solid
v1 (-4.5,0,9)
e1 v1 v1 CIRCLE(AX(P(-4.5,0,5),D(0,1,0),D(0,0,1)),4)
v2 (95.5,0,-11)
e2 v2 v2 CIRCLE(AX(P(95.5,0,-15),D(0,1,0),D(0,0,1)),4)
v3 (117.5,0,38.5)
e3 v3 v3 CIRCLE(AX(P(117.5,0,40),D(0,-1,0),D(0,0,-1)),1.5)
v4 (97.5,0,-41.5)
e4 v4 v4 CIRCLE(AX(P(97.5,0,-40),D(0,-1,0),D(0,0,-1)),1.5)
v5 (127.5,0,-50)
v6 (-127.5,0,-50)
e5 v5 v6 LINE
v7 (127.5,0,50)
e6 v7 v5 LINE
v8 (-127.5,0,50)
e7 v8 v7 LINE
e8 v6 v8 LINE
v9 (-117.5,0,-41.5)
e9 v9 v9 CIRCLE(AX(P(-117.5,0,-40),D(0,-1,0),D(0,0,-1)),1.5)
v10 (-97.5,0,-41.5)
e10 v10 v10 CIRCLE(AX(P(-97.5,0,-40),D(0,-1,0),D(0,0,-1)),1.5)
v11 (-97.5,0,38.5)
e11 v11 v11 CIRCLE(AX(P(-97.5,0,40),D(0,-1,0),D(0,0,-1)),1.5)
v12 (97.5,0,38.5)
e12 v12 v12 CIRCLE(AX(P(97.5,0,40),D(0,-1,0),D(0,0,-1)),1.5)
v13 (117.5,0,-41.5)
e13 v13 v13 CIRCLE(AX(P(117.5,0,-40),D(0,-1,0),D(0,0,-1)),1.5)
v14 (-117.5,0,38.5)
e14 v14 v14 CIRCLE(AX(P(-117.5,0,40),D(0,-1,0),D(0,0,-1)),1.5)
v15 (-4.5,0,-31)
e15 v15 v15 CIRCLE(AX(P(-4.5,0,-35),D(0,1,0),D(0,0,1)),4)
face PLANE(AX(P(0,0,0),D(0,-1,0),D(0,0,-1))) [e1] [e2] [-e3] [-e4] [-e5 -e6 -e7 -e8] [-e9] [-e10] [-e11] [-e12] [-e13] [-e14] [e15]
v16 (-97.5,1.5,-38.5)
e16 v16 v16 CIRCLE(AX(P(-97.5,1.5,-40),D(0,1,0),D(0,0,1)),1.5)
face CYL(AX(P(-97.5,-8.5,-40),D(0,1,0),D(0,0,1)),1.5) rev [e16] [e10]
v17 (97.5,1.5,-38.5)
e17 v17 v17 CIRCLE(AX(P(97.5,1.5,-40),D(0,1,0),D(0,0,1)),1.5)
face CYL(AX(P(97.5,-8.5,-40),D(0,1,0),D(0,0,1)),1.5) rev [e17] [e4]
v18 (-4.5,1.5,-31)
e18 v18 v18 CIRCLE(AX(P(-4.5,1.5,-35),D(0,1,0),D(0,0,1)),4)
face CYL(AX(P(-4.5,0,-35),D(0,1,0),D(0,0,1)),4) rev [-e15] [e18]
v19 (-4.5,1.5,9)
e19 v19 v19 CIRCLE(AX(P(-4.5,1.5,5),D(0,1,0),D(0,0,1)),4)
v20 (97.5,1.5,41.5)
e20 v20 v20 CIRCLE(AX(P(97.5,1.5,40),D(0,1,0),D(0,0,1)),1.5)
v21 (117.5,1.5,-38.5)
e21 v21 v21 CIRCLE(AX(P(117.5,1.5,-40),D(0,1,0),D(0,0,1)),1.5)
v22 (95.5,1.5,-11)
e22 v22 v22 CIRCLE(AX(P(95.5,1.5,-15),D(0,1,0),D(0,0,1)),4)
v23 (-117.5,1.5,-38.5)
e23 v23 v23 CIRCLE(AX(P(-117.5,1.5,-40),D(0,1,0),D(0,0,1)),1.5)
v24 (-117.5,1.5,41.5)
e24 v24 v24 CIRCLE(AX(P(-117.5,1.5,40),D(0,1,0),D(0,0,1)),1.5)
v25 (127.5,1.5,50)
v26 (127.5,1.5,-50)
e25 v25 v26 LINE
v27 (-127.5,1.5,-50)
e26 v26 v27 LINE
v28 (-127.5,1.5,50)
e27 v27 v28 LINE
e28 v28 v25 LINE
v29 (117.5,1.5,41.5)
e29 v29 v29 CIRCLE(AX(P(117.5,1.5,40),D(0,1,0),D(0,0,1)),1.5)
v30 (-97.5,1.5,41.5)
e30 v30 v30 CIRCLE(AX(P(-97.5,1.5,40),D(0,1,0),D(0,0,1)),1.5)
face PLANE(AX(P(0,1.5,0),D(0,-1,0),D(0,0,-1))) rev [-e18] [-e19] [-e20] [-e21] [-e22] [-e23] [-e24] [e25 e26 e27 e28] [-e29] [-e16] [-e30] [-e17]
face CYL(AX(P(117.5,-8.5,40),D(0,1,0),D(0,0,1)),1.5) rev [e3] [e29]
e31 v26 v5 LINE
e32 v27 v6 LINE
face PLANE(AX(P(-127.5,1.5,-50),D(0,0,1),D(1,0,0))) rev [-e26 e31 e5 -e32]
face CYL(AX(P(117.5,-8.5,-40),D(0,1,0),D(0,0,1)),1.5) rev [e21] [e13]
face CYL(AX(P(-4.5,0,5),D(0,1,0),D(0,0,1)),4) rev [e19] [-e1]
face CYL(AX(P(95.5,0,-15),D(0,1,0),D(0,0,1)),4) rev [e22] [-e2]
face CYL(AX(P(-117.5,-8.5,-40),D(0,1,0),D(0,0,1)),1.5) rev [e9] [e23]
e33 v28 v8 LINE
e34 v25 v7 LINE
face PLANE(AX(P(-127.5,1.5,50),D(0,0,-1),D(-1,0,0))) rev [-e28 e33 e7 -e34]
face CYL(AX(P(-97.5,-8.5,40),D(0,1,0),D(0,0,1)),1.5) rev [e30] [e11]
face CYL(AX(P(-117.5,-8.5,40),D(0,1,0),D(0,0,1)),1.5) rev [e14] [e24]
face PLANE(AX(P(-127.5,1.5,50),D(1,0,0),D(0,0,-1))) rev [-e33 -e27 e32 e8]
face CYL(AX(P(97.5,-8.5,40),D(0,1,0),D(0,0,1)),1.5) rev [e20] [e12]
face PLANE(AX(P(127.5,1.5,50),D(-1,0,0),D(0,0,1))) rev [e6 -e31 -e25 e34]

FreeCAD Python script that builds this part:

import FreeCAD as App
import Part
import Sketcher

V = App.Vector
Q = App.Units.Quantity


def add_polygon(sketch, points):
    """Adds a closed chain of lines whose ends are joined by coincident constraints."""
    first, n = sketch.GeometryCount, len(points)
    for a, b in zip(points, points[1:] + points[:1]):
        sketch.addGeometry(Part.LineSegment(App.Vector(*a, 0), App.Vector(*b, 0)), False)
    for i in range(n):
        sketch.addConstraint(Sketcher.Constraint("Coincident", first + i, 2, first + (i + 1) % n, 1))

doc = App.newDocument("Part")
body = doc.addObject("PartDesign::Body", "Body")

# Sketch on XZ plane
sketch1 = doc.addObject("Sketcher::SketchObject", "Sketch")
body.addObject(sketch1)
sketch1.AttachmentSupport = (doc.XZ_Plane, [""])
sketch1.MapMode = "FlatFace"
add_polygon(sketch1, [(-128, -50), (-128, 50), (128, 50), (128, -50)])  # lines 0-3
sketch1.addConstraint(Sketcher.Constraint("Vertical", 0))
sketch1.addConstraint(Sketcher.Constraint("Horizontal", 1))
sketch1.addConstraint(Sketcher.Constraint("Vertical", 2))
sketch1.addConstraint(Sketcher.Constraint("Horizontal", 3))
sketch1.addConstraint(Sketcher.Constraint("Symmetric", 0, 2, 2, 2, -1, 1))
sketch1.addConstraint(Sketcher.Constraint("DistanceX", 1, 1, 1, 2, Q("255 mm")))
sketch1.addConstraint(Sketcher.Constraint("DistanceY", 0, 1, 0, 2, Q("100 mm")))
pad1 = doc.addObject("PartDesign::Pad", "Pad")
body.addObject(pad1)
pad1.Profile = sketch1
pad1.Length = 1.5
pad1.Reversed = True

# Sketch on XZ plane
sketch2 = doc.addObject("Sketcher::SketchObject", "Sketch001")
body.addObject(sketch2)
sketch2.AttachmentSupport = (doc.XZ_Plane, [""])
sketch2.MapMode = "FlatFace"
sketch2.AttachmentOffset = App.Placement(V(0, 0, -1.5), App.Rotation())
sketch2.addGeometry(Part.Circle(V(117.5, -40, 0), V(0, 0, 1), 1.5), False)
sketch2.addGeometry(Part.Circle(V(97.5, -40, 0), V(0, 0, 1), 1.5), False)
sketch2.addGeometry(Part.Circle(V(97.5, 40, 0), V(0, 0, 1), 1.5), False)
sketch2.addGeometry(Part.Circle(V(117.5, 40, 0), V(0, 0, 1), 1.5), False)
sketch2.addGeometry(Part.Circle(V(-97.5, -40, 0), V(0, 0, 1), 1.5), False)
sketch2.addGeometry(Part.Circle(V(-117.5, -40, 0), V(0, 0, 1), 1.5), False)
sketch2.addGeometry(Part.Circle(V(-117.5, 40, 0), V(0, 0, 1), 1.5), False)
sketch2.addGeometry(Part.Circle(V(-97.5, 40, 0), V(0, 0, 1), 1.5), False)
sketch2.addConstraint(Sketcher.Constraint("Equal", 0, 1))
sketch2.addConstraint(Sketcher.Constraint("Equal", 1, 2))
sketch2.addConstraint(Sketcher.Constraint("Equal", 2, 3))
sketch2.addConstraint(Sketcher.Constraint("Equal", 3, 4))
sketch2.addConstraint(Sketcher.Constraint("Equal", 4, 5))
sketch2.addConstraint(Sketcher.Constraint("Equal", 5, 6))
sketch2.addConstraint(Sketcher.Constraint("Equal", 6, 7))
sketch2.addConstraint(Sketcher.Constraint("Symmetric", 2, 3, 4, 3, -1, 1))
sketch2.addConstraint(Sketcher.Constraint("Symmetric", 3, 3, 5, 3, -1, 1))
sketch2.addConstraint(Sketcher.Constraint("Symmetric", 0, 3, 6, 3, -1, 1))
sketch2.addConstraint(Sketcher.Constraint("Symmetric", 1, 3, 7, 3, -1, 1))
sketch2.addConstraint(Sketcher.Constraint("Symmetric", 1, 3, 4, 3, -2))
sketch2.addConstraint(Sketcher.Constraint("Symmetric", 0, 3, 5, 3, -2))
sketch2.addConstraint(Sketcher.Constraint("Horizontal", 0, 3, 1, 3))
sketch2.addConstraint(Sketcher.Constraint("Diameter", 0, Q("3 mm")))
sketch2.addConstraint(Sketcher.Constraint("DistanceY", 0, 3, -1, 1, Q("40 mm")))
sketch2.addConstraint(Sketcher.Constraint("DistanceX", 1, 3, 0, 3, Q("20 mm")))
sketch2.addConstraint(Sketcher.Constraint("DistanceX", 4, 3, 1, 3, Q("195 mm")))
pocket1 = doc.addObject("PartDesign::Pocket", "Pocket")
body.addObject(pocket1)
pocket1.Profile = sketch2
pocket1.Length = 10
pocket1.Reversed = True

# Sketch on XZ plane
sketch3 = doc.addObject("Sketcher::SketchObject", "Sketch002")
body.addObject(sketch3)
sketch3.AttachmentSupport = (doc.XZ_Plane, [""])
sketch3.MapMode = "FlatFace"
sketch3.AttachmentOffset = App.Placement(V(0, 0, -1.5), App.Rotation())
sketch3.addGeometry(Part.Circle(V(95.5, -15, 0), V(0, 0, 1), 4), False)
sketch3.addGeometry(Part.Circle(V(-4.5, -35, 0), V(0, 0, 1), 4), False)
sketch3.addGeometry(Part.Circle(V(-4.5, 5, 0), V(0, 0, 1), 4), False)
sketch3.addConstraint(Sketcher.Constraint("Equal", 0, 1))
sketch3.addConstraint(Sketcher.Constraint("Equal", 1, 2))
sketch3.addConstraint(Sketcher.Constraint("Vertical", 1, 3, 2, 3))
sketch3.addConstraint(Sketcher.Constraint("Diameter", 0, Q("8 mm")))
sketch3.addConstraint(Sketcher.Constraint("DistanceY", 0, 3, -1, 1, Q("15 mm")))
sketch3.addConstraint(Sketcher.Constraint("DistanceY", 1, 3, -1, 1, Q("35 mm")))
sketch3.addConstraint(Sketcher.Constraint("DistanceY", -1, 1, 2, 3, Q("5 mm")))
sketch3.addConstraint(Sketcher.Constraint("DistanceX", 1, 3, 0, 3, Q("100 mm")))
sketch3.addConstraint(Sketcher.Constraint("DistanceX", -1, 1, 0, 3, Q("95.5 mm")))
pocket2 = doc.addObject("PartDesign::Pocket", "Pocket001")
body.addObject(pocket2)
pocket2.Profile = sketch3
pocket2.Type = "ThroughAll"
pocket2.Reversed = True

doc.recompute()
